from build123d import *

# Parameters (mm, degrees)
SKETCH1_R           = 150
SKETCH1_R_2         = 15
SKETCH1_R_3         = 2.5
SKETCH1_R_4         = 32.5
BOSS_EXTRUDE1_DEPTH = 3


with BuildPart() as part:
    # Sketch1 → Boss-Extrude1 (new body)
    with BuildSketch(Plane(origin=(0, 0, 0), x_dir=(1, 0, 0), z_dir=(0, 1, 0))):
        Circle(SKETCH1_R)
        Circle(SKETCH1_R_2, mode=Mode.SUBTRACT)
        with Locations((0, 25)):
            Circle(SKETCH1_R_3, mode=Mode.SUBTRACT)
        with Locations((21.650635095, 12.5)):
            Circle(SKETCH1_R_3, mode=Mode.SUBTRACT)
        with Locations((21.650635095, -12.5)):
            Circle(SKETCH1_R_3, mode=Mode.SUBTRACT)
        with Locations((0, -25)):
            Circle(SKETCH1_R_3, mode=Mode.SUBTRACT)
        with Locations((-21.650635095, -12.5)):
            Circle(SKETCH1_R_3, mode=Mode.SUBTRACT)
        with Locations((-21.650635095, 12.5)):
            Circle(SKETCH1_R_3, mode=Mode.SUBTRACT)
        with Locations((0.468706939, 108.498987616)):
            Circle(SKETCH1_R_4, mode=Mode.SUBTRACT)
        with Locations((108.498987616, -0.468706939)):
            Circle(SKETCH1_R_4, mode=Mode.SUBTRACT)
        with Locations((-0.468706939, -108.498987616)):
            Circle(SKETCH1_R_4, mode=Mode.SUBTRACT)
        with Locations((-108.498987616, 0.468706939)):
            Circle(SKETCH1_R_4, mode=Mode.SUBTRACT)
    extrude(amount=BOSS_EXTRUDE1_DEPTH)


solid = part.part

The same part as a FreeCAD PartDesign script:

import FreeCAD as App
import Part
import Sketcher

V = App.Vector

doc = App.newDocument("Part")
params = doc.addObject("Spreadsheet::Sheet", "Params")
for row, (alias, value) in enumerate([
    ("sketch1_diameter", "300 mm"),
    ("sketch1_diameter2", "65 mm"),
    ("sketch1_diameter3", "5 mm"),
    ("sketch1_diameter4", "30 mm"),
    ("pad1_length", "3 mm"),
], start=1):
    params.set(f"A{row}", alias)
    params.set(f"B{row}", "=" + value)
    params.setAlias(f"B{row}", alias)

body = doc.addObject("PartDesign::Body", "Body")

sketch1 = body.newObject("Sketcher::SketchObject", "Sketch")
sketch1.AttachmentSupport = (doc.getObject("XZ_Plane"), [""])
sketch1.MapMode = "FlatFace"
sketch1.addGeometry([
    Part.Circle(V(0, 0, 0), V(0, 0, 1), 150),
    Part.Circle(V(-0.5, 108.5, 0), V(0, 0, 1), 32.5),
    Part.Circle(V(0, 25, 0), V(0, 0, 1), 2.5),
    Part.Circle(V(-21.7, 12.5, 0), V(0, 0, 1), 2.5),
    Part.Circle(V(0, 0, 0), V(0, 0, 1), 15),
    Part.Circle(V(21.7, 12.5, 0), V(0, 0, 1), 2.5),
    Part.Circle(V(108.5, 0.5, 0), V(0, 0, 1), 32.5),
    Part.Circle(V(-108.5, -0.5, 0), V(0, 0, 1), 32.5),
    Part.Circle(V(-21.7, -12.5, 0), V(0, 0, 1), 2.5),
    Part.Circle(V(0, -25, 0), V(0, 0, 1), 2.5),
    Part.Circle(V(21.7, -12.5, 0), V(0, 0, 1), 2.5),
    Part.Circle(V(0.5, -108.5, 0), V(0, 0, 1), 32.5),
], False)
sketch1.addConstraint([
    Sketcher.Constraint("Coincident", 0, 3, -1, 1),
    Sketcher.Constraint("Coincident", 4, 3, -1, 1),
    Sketcher.Constraint("Equal", 2, 3),
    Sketcher.Constraint("Equal", 3, 5),
    Sketcher.Constraint("Equal", 1, 6),
    Sketcher.Constraint("Equal", 6, 7),
    Sketcher.Constraint("Equal", 5, 8),
    Sketcher.Constraint("Equal", 8, 9),
    Sketcher.Constraint("Equal", 9, 10),
    Sketcher.Constraint("Equal", 7, 11),
    Sketcher.Constraint("Symmetric", 6, 3, 7, 3, -1, 1),
    Sketcher.Constraint("Symmetric", 5, 3, 8, 3, -1, 1),
    Sketcher.Constraint("Symmetric", 2, 3, 9, 3, -1, 1),
    Sketcher.Constraint("Symmetric", 3, 3, 10, 3, -1, 1),
    Sketcher.Constraint("Symmetric", 1, 3, 11, 3, -1, 1),
    Sketcher.Constraint("Symmetric", 3, 3, 5, 3, -2),
    Sketcher.Constraint("PointOnObject", 2, 3, -2),
    Sketcher.Constraint("Diameter", 0, 300.0),
    Sketcher.Constraint("Diameter", 1, 65.0),
    Sketcher.Constraint("Diameter", 2, 5.0),
    Sketcher.Constraint("Diameter", 4, 30.0),
    Sketcher.Constraint("DistanceY", -1, 1, 2, 3, 25.0),
    Sketcher.Constraint("DistanceY", 8, 3, 3, 3, 25.0),
    Sketcher.Constraint("DistanceX", 3, 3, 1, 3, 21.181928),
    Sketcher.Constraint("DistanceX", 3, 3, 5, 3, 43.30127),
    Sketcher.Constraint("DistanceY", -1, 1, 1, 3, 108.498988),
    Sketcher.Constraint("DistanceX", -1, 1, 6, 3, 108.498988),
    Sketcher.Constraint("DistanceY", -1, 1, 6, 3, 0.468707),
])
sketch1.setExpression("Constraints[17]", "Params.sketch1_diameter")
sketch1.setExpression("Constraints[18]", "Params.sketch1_diameter2")
sketch1.setExpression("Constraints[19]", "Params.sketch1_diameter3")
sketch1.setExpression("Constraints[20]", "Params.sketch1_diameter4")
pad1 = body.newObject("PartDesign::Pad", "Pad")
pad1.Profile = sketch1
pad1.setExpression("Length", "Params.pad1_length")
pad1.Reversed = True

doc.recompute()
